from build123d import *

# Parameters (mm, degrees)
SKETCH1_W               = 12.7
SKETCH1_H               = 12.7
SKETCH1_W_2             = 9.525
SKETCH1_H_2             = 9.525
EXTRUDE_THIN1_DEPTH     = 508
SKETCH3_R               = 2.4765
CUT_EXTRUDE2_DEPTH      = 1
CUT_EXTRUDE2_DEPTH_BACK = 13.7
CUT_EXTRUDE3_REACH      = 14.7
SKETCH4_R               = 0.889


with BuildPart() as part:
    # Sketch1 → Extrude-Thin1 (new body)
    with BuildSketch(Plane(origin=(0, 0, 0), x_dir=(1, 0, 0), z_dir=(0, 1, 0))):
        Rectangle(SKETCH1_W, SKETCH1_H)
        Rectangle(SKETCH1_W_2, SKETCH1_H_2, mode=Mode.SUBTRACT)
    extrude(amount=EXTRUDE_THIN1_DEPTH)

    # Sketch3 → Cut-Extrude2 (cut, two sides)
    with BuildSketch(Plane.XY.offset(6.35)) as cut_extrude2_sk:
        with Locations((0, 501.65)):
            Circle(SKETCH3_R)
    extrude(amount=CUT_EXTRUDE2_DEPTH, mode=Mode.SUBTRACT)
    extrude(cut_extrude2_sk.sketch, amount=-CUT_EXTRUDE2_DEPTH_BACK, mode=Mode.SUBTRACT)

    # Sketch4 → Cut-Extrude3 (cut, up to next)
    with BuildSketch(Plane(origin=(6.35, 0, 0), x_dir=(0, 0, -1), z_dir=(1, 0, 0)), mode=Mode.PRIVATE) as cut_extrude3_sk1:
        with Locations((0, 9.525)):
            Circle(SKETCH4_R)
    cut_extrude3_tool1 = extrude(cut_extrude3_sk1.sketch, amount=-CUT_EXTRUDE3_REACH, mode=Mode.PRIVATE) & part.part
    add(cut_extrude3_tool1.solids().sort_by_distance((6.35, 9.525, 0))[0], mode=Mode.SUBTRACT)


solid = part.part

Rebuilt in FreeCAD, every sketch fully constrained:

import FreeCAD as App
import Part
import Sketcher

V = App.Vector
Q = App.Units.Quantity


def add_polygon(sketch, points):
    """Adds a closed chain of lines whose ends are joined by coincident constraints."""
    first, n = sketch.GeometryCount, len(points)
    for a, b in zip(points, points[1:] + points[:1]):
        sketch.addGeometry(Part.LineSegment(App.Vector(*a, 0), App.Vector(*b, 0)), False)
    for i in range(n):
        sketch.addConstraint(Sketcher.Constraint("Coincident", first + i, 2, first + (i + 1) % n, 1))

doc = App.newDocument("Part")
body = doc.addObject("PartDesign::Body", "Body")

# Sketch on XZ plane
sketch1 = body.newObject("Sketcher::SketchObject", "Sketch")
sketch1.AttachmentSupport = (doc.getObject("XZ_Plane"), [""])
sketch1.MapMode = "FlatFace"
add_polygon(sketch1, [(-6, -6), (-6, 6), (6, 6), (6, -6)])  # lines 0-3
add_polygon(sketch1, [(5, 5), (-5, 5), (-5, -5), (5, -5)])  # lines 4-7
sketch1.addConstraint(Sketcher.Constraint("Vertical", 0))
sketch1.addConstraint(Sketcher.Constraint("Horizontal", 1))
sketch1.addConstraint(Sketcher.Constraint("Vertical", 2))
sketch1.addConstraint(Sketcher.Constraint("Horizontal", 3))
sketch1.addConstraint(Sketcher.Constraint("Horizontal", 4))
sketch1.addConstraint(Sketcher.Constraint("Vertical", 5))
sketch1.addConstraint(Sketcher.Constraint("Horizontal", 6))
sketch1.addConstraint(Sketcher.Constraint("Vertical", 7))
sketch1.addConstraint(Sketcher.Constraint("Symmetric", 0, 2, 2, 2, -1, 1))
sketch1.addConstraint(Sketcher.Constraint("Symmetric", 4, 2, 6, 2, -1, 1))
sketch1.addConstraint(Sketcher.Constraint("Equal", 3, 0))
sketch1.addConstraint(Sketcher.Constraint("Equal", 6, 5))
sketch1.addConstraint(Sketcher.Constraint("DistanceX", 1, 1, 1, 2, Q("0.5 in")))
sketch1.addConstraint(Sketcher.Constraint("DistanceX", 4, 2, 4, 1, Q("0.375 in")))
pad1 = body.newObject("PartDesign::Pad", "Pad")
pad1.Profile = sketch1
pad1.Length = Q("20 in")
pad1.Reversed = True

# Sketch on XY plane
sketch2 = body.newObject("Sketcher::SketchObject", "Sketch001")
sketch2.AttachmentSupport = (doc.getObject("XY_Plane"), [""])
sketch2.MapMode = "FlatFace"
sketch2.AttachmentOffset = App.Placement(V(0, 0, 0.25 * 25.4), App.Rotation())
sketch2.addGeometry(Part.Circle(V(0, 501.6, 0), V(0, 0, 1), 2.5), False)
sketch2.addConstraint(Sketcher.Constraint("PointOnObject", 0, 3, -2))
sketch2.addConstraint(Sketcher.Constraint("Diameter", 0, Q("0.195 in")))
sketch2.addConstraint(Sketcher.Constraint("DistanceY", -1, 1, 0, 3, Q("19.75 in")))
pocket1 = body.newObject("PartDesign::Pocket", "Pocket")
pocket1.Profile = sketch2
pocket1.Type = "ThroughAll"
pocket1.Midplane = True

# Sketch on YZ plane
sketch3 = body.newObject("Sketcher::SketchObject", "Sketch002")
sketch3.AttachmentSupport = (doc.getObject("YZ_Plane"), [""])
sketch3.MapMode = "FlatFace"
sketch3.AttachmentOffset = App.Placement(V(0, 0, 0.25 * 25.4), App.Rotation())
sketch3.addGeometry(Part.Circle(V(9.5, 0, 0), V(0, 0, 1), 0.9), False)
sketch3.addConstraint(Sketcher.Constraint("PointOnObject", 0, 3, -1))
sketch3.addConstraint(Sketcher.Constraint("Diameter", 0, Q("0.07 in")))
sketch3.addConstraint(Sketcher.Constraint("DistanceX", -1, 1, 0, 3, Q("0.375 in")))
pocket2 = body.newObject("PartDesign::Pocket", "Pocket001")
pocket2.Profile = sketch3
pocket2.Type = "UpToFirst"

doc.recompute()
